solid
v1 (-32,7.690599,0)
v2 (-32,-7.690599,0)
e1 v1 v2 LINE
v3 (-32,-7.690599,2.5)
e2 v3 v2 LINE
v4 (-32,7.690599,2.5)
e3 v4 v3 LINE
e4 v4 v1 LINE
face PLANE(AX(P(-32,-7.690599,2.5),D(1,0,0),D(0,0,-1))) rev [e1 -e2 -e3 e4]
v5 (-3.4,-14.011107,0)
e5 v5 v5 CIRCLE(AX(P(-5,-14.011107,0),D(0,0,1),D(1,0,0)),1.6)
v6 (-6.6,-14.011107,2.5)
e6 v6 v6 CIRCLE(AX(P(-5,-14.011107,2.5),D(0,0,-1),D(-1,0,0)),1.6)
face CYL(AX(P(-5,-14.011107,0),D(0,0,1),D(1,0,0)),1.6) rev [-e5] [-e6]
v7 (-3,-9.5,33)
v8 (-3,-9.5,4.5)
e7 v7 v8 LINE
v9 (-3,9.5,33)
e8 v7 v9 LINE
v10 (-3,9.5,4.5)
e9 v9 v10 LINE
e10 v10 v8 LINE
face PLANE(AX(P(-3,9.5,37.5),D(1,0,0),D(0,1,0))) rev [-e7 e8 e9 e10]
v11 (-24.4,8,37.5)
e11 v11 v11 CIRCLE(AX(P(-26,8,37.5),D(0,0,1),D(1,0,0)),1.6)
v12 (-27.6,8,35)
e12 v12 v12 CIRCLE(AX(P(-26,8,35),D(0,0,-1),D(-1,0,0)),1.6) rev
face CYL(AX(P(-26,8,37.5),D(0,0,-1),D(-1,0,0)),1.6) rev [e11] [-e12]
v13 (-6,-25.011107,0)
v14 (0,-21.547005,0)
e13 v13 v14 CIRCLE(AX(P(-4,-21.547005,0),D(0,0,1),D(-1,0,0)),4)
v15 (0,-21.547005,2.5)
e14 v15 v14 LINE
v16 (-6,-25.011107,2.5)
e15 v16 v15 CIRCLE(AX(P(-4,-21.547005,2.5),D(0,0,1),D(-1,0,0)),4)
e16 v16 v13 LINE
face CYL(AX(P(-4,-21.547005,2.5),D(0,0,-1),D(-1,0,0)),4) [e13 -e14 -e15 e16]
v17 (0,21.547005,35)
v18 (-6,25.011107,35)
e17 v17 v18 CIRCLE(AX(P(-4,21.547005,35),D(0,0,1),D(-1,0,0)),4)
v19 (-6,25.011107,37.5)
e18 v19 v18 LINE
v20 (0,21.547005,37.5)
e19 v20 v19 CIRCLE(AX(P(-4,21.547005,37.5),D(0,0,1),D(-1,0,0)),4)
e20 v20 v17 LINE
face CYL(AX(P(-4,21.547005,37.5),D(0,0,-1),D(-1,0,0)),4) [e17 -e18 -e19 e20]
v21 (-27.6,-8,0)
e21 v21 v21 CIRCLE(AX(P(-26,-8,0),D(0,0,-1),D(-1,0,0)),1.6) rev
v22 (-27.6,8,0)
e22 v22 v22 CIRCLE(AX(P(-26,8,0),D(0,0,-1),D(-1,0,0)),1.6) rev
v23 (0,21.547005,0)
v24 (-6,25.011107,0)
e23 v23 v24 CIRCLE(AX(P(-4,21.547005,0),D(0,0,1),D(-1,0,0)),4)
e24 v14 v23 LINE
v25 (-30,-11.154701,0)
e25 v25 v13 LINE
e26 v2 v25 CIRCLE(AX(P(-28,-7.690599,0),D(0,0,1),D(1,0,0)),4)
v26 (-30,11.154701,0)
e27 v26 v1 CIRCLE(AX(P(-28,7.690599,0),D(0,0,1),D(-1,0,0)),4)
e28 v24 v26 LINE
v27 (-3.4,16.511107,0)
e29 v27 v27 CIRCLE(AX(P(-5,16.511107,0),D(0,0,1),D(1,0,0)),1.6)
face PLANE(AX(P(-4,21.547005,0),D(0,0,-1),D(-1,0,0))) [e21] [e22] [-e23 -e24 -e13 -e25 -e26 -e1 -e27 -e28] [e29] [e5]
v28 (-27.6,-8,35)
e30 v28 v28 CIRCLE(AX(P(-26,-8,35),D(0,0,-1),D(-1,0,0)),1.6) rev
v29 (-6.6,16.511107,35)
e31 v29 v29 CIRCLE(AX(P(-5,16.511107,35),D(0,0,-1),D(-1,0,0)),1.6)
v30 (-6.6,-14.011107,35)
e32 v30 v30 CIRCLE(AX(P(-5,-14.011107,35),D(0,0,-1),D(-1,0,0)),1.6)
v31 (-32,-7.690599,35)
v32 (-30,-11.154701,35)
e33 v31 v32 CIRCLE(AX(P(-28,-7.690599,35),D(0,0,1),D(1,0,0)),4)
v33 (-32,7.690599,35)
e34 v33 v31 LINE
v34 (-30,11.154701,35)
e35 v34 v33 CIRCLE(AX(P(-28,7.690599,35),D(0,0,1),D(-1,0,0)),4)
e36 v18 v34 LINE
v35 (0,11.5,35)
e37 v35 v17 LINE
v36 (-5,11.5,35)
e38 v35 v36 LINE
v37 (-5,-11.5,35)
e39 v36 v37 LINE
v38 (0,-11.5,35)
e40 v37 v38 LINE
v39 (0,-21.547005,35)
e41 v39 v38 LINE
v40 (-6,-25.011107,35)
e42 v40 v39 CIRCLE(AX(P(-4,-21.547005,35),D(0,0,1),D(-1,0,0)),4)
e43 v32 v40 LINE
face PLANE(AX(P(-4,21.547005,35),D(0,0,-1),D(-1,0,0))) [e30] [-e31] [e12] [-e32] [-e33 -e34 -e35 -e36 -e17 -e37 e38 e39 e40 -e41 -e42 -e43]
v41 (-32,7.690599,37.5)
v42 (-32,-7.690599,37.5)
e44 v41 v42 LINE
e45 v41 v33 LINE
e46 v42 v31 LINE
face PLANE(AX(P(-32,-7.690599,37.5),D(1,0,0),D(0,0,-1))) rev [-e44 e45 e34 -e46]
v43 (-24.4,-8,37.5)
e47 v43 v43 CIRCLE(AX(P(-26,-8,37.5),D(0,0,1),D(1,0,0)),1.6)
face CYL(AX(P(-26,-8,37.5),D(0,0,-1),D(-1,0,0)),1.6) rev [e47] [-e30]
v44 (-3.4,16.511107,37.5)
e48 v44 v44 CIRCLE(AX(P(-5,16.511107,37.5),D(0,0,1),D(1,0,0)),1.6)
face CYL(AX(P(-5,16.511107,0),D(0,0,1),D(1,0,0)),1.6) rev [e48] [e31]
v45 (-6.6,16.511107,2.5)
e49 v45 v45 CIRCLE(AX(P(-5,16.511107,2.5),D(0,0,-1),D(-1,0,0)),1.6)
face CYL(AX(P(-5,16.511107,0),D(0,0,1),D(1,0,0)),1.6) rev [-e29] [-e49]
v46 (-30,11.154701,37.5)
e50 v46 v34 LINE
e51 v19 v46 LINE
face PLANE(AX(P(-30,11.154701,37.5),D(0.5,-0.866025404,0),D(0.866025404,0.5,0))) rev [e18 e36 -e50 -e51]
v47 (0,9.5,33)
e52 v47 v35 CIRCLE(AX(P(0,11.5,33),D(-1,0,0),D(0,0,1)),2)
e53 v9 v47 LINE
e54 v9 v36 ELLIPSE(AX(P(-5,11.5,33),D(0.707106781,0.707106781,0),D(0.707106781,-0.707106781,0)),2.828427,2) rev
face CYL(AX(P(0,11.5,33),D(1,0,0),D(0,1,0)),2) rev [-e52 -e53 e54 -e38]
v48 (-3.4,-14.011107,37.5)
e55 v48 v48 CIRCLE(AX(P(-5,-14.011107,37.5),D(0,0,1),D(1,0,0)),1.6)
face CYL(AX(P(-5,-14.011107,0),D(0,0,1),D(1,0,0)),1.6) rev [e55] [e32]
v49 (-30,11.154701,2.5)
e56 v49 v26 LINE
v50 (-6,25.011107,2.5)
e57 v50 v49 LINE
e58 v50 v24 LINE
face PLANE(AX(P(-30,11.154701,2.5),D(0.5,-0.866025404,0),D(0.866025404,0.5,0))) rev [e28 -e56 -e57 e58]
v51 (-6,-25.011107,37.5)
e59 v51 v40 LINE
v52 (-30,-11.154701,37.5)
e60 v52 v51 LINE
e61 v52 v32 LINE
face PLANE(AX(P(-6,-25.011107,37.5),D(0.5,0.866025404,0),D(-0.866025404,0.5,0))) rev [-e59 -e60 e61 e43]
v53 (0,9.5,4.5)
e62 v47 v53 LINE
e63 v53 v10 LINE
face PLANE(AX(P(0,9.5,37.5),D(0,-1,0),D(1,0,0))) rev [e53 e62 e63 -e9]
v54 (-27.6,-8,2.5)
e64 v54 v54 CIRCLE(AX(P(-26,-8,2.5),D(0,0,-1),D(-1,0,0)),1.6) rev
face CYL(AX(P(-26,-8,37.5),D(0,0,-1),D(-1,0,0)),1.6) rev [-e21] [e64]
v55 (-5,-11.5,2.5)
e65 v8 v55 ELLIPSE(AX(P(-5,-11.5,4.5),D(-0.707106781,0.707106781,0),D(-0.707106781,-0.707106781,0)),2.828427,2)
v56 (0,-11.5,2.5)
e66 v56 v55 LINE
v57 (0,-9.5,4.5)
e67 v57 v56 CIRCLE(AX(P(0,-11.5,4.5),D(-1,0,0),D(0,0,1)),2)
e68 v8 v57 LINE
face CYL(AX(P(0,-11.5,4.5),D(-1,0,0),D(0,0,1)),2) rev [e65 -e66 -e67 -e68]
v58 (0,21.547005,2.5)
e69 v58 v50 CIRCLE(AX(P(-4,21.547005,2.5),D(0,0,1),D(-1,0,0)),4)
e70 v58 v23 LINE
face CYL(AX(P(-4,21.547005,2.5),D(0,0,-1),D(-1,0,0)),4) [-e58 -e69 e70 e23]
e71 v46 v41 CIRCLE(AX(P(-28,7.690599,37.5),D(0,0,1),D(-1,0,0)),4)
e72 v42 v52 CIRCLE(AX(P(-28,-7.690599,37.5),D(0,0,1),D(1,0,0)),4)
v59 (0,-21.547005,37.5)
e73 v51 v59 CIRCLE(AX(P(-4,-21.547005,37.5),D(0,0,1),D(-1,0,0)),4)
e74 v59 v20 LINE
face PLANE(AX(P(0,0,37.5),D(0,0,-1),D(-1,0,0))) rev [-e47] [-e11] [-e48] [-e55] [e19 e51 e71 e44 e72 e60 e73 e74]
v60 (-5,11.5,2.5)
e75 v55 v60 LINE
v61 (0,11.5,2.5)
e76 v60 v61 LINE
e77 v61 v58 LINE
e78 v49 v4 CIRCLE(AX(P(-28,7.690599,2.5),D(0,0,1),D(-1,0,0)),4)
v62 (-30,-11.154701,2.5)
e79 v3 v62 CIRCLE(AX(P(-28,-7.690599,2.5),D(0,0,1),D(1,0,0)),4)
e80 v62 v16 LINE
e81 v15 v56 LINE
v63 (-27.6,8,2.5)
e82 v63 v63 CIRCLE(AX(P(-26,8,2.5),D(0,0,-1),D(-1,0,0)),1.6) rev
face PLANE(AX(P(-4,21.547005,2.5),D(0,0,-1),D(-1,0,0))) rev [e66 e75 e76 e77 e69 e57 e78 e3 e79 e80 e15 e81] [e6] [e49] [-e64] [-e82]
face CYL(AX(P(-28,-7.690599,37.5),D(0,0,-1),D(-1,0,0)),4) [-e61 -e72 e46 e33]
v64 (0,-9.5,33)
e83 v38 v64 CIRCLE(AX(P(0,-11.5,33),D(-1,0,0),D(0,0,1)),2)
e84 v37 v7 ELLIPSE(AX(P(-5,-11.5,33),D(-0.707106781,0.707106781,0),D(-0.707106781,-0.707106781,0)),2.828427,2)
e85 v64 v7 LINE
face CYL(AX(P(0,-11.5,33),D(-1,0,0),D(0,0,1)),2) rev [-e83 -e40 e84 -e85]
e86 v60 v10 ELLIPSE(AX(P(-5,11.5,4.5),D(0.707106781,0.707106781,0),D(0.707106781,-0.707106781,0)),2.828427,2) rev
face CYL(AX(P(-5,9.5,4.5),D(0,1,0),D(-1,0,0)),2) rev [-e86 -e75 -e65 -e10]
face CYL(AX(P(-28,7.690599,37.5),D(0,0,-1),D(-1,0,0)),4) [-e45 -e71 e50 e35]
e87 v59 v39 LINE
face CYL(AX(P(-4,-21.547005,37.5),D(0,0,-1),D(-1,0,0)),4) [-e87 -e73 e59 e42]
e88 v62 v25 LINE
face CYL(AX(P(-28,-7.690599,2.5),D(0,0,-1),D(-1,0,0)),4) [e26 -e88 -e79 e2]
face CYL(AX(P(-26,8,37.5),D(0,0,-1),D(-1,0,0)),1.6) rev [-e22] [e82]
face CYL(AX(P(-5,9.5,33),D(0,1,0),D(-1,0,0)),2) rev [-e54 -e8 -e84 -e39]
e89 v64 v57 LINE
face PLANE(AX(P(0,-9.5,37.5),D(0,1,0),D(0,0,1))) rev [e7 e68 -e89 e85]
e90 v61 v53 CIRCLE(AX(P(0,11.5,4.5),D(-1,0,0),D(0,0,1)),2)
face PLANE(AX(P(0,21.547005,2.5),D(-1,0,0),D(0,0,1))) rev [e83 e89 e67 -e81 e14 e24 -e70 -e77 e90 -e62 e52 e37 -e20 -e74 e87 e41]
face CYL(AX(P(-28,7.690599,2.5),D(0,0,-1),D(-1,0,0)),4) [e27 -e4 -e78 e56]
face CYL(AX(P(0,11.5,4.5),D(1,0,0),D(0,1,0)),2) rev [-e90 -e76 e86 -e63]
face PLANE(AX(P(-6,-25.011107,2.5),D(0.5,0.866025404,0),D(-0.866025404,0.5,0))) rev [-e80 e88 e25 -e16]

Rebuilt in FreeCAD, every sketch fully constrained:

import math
import FreeCAD as App
import Part
import Sketcher
from FreeCAD import Vector
Q = App.Units.Quantity


def edges_at(feature, points):
    """Names of the edges that pass closest to the given points."""
    edges = feature.Shape.Edges
    near = lambda p: min(range(len(edges)), key=lambda i: edges[i].distToShape(Part.Vertex(*p))[0])
    return sorted({f"Edge{near(p) + 1}" for p in points})

doc = App.newDocument("Part")
body = doc.addObject("PartDesign::Body", "Body")

sketch1 = doc.addObject("Sketcher::SketchObject", "Sketch")
body.addObject(sketch1)
sketch1.AttachmentSupport = (doc.XY_Plane, [""])
sketch1.MapMode = "FlatFace"
sketch1.addGeometry(Part.LineSegment(Vector(-32, 7.690599, 0), Vector(-32, -7.690599, 0)), False)
sketch1.addGeometry(Part.ArcOfCircle(Part.Circle(Vector(-28, -7.690599, 0), Vector(0, 0, 1), 4), math.radians(180), math.radians(240)), False)
sketch1.addGeometry(Part.LineSegment(Vector(-30, -11.154701, 0), Vector(-6, -25.011107, 0)), False)
sketch1.addGeometry(Part.ArcOfCircle(Part.Circle(Vector(-4, -21.547005, 0), Vector(0, 0, 1), 4), math.radians(-120), math.radians(0)), False)
sketch1.addGeometry(Part.LineSegment(Vector(0, -21.547005, 0), Vector(0, 21.547005, 0)), False)
sketch1.addGeometry(Part.ArcOfCircle(Part.Circle(Vector(-4, 21.547005, 0), Vector(0, 0, 1), 4), math.radians(0), math.radians(120)), False)
sketch1.addGeometry(Part.LineSegment(Vector(-6, 25.011107, 0), Vector(-30, 11.154701, 0)), False)
sketch1.addGeometry(Part.ArcOfCircle(Part.Circle(Vector(-28, 7.690599, 0), Vector(0, 0, 1), 4), math.radians(120), math.radians(180)), False)
sketch1.addConstraint(Sketcher.Constraint("Tangent", 0, 2, 1, 1))
sketch1.addConstraint(Sketcher.Constraint("Tangent", 1, 2, 2, 1))
sketch1.addConstraint(Sketcher.Constraint("Tangent", 2, 2, 3, 1))
sketch1.addConstraint(Sketcher.Constraint("Tangent", 3, 2, 4, 1))
sketch1.addConstraint(Sketcher.Constraint("Tangent", 4, 2, 5, 1))
sketch1.addConstraint(Sketcher.Constraint("Tangent", 5, 2, 6, 1))
sketch1.addConstraint(Sketcher.Constraint("Tangent", 6, 2, 7, 1))
sketch1.addConstraint(Sketcher.Constraint("Tangent", 7, 2, 0, 1))
sketch1.addConstraint(Sketcher.Constraint("Vertical", 0))
sketch1.addConstraint(Sketcher.Constraint("Vertical", 4))
sketch1.addConstraint(Sketcher.Constraint("Equal", 1, 3))
sketch1.addConstraint(Sketcher.Constraint("Equal", 3, 5))
sketch1.addConstraint(Sketcher.Constraint("Equal", 5, 7))
sketch1.addConstraint(Sketcher.Constraint("Symmetric", 3, 2, 4, 2, -1, 1))
sketch1.addConstraint(Sketcher.Constraint("Vertical", 2, 2, 5, 2))
sketch1.addConstraint(Sketcher.Constraint("Radius", 1, 4.0))
sketch1.addConstraint(Sketcher.Constraint("Angle", 2, Q("-30 deg")))
sketch1.addConstraint(Sketcher.Constraint("DistanceX", 1, 3, -1, 1, 28.0))
sketch1.addConstraint(Sketcher.Constraint("DistanceY", 4, 1, 4, 2, 43.094011))
pad1 = doc.addObject("PartDesign::Pad", "Pad")
body.addObject(pad1)
pad1.Profile = sketch1
pad1.Length = 2.5

sketch2 = doc.addObject("Sketcher::SketchObject", "Sketch001")
body.addObject(sketch2)
sketch2.AttachmentSupport = (doc.XY_Plane, [""])
sketch2.MapMode = "FlatFace"
sketch2.AttachmentOffset = App.Placement(Vector(0, 0, 2.5), App.Rotation())
sketch2.addGeometry(Part.LineSegment(Vector(-3, 9.5, 0), Vector(-3, -9.5, 0)), False)
sketch2.addGeometry(Part.LineSegment(Vector(-3, -9.5, 0), Vector(0, -9.5, 0)), False)
sketch2.addGeometry(Part.LineSegment(Vector(0, -9.5, 0), Vector(0, 9.5, 0)), False)
sketch2.addGeometry(Part.LineSegment(Vector(0, 9.5, 0), Vector(-3, 9.5, 0)), False)
sketch2.addConstraint(Sketcher.Constraint("Coincident", 0, 2, 1, 1))
sketch2.addConstraint(Sketcher.Constraint("Coincident", 1, 2, 2, 1))
sketch2.addConstraint(Sketcher.Constraint("Coincident", 2, 2, 3, 1))
sketch2.addConstraint(Sketcher.Constraint("Coincident", 3, 2, 0, 1))
sketch2.addConstraint(Sketcher.Constraint("Vertical", 0))
sketch2.addConstraint(Sketcher.Constraint("Horizontal", 1))
sketch2.addConstraint(Sketcher.Constraint("Vertical", 2))
sketch2.addConstraint(Sketcher.Constraint("Horizontal", 3))
sketch2.addConstraint(Sketcher.Constraint("Symmetric", 1, 2, 2, 2, -1, 1))
sketch2.addConstraint(Sketcher.Constraint("DistanceX", 1, 1, 1, 2, 3.0))
sketch2.addConstraint(Sketcher.Constraint("DistanceY", 0, 2, 0, 1, 19.0))
pad2 = doc.addObject("PartDesign::Pad", "Pad001")
body.addObject(pad2)
pad2.Profile = sketch2
pad2.Length = 35
doc.recompute()

linearpattern = doc.addObject("PartDesign::LinearPattern", "LinearPattern")
body.addObject(linearpattern)
linearpattern.Originals = [pad1]
linearpattern.Direction = (doc.Z_Axis, [""])
linearpattern.Mode = "offset"
linearpattern.Offset = 35
linearpattern.Occurrences = 2
body.Tip = linearpattern

sketch3 = doc.addObject("Sketcher::SketchObject", "Sketch002")
body.addObject(sketch3)
sketch3.AttachmentSupport = (doc.XY_Plane, [""])
sketch3.MapMode = "FlatFace"
sketch3.AttachmentOffset = App.Placement(Vector(0, 0, 2.5), App.Rotation())
sketch3.addGeometry(Part.Circle(Vector(-26, 8, 0), Vector(0, 0, 1), 1.6), False)
sketch3.addGeometry(Part.Circle(Vector(-26, -8, 0), Vector(0, 0, 1), 1.6), False)
sketch3.addConstraint(Sketcher.Constraint("Equal", 0, 1))
sketch3.addConstraint(Sketcher.Constraint("Symmetric", 0, 3, 1, 3, -1))
sketch3.addConstraint(Sketcher.Constraint("Diameter", 0, 3.2))
sketch3.addConstraint(Sketcher.Constraint("DistanceX", 0, 3, -1, 1, 26.0))
sketch3.addConstraint(Sketcher.Constraint("DistanceY", -1, 1, 0, 3, 8.0))
pocket1 = doc.addObject("PartDesign::Pocket", "Pocket")
body.addObject(pocket1)
pocket1.Profile = sketch3
pocket1.Type = "ThroughAll"
pocket1.Midplane = True

sketch4 = doc.addObject("Sketcher::SketchObject", "Sketch003")
body.addObject(sketch4)
sketch4.AttachmentSupport = (doc.XY_Plane, [""])
sketch4.MapMode = "FlatFace"
sketch4.AttachmentOffset = App.Placement(Vector(0, 0, 37.5), App.Rotation())
sketch4.addGeometry(Part.Circle(Vector(-5, 16.511107, 0), Vector(0, 0, 1), 1.6), False)
sketch4.addGeometry(Part.Circle(Vector(-5, -14.011107, 0), Vector(0, 0, 1), 1.6), False)
sketch4.addConstraint(Sketcher.Constraint("Equal", 0, 1))
sketch4.addConstraint(Sketcher.Constraint("Vertical", 0, 3, 1, 3))
sketch4.addConstraint(Sketcher.Constraint("Diameter", 0, 3.2))
sketch4.addConstraint(Sketcher.Constraint("DistanceX", 0, 3, -1, 1, 5.0))
sketch4.addConstraint(Sketcher.Constraint("DistanceY", -1, 1, 0, 3, 16.511107))
sketch4.addConstraint(Sketcher.Constraint("DistanceY", 1, 3, -1, 1, 14.011107))
pocket2 = doc.addObject("PartDesign::Pocket", "Pocket001")
body.addObject(pocket2)
pocket2.Profile = sketch4
pocket2.Type = "ThroughAll"
doc.recompute()

fillet = doc.addObject("PartDesign::Fillet", "Fillet")
body.addObject(fillet)
fillet.Base = (pocket2, edges_at(pocket2, [
    (-1.5, 9.5, 2.5),
    (-1.5, -9.5, 2.5),
    (-1.5, -9.5, 35),
    (-1.5, 9.5, 35),
]))
fillet.Radius = 2
doc.recompute()

fillet2 = doc.addObject("PartDesign::Fillet", "Fillet001")
body.addObject(fillet2)
fillet2.Base = (fillet, edges_at(fillet, [(-3, 0, 2.5), (-3, 0, 35)]))
fillet2.Radius = 2

doc.recompute()
